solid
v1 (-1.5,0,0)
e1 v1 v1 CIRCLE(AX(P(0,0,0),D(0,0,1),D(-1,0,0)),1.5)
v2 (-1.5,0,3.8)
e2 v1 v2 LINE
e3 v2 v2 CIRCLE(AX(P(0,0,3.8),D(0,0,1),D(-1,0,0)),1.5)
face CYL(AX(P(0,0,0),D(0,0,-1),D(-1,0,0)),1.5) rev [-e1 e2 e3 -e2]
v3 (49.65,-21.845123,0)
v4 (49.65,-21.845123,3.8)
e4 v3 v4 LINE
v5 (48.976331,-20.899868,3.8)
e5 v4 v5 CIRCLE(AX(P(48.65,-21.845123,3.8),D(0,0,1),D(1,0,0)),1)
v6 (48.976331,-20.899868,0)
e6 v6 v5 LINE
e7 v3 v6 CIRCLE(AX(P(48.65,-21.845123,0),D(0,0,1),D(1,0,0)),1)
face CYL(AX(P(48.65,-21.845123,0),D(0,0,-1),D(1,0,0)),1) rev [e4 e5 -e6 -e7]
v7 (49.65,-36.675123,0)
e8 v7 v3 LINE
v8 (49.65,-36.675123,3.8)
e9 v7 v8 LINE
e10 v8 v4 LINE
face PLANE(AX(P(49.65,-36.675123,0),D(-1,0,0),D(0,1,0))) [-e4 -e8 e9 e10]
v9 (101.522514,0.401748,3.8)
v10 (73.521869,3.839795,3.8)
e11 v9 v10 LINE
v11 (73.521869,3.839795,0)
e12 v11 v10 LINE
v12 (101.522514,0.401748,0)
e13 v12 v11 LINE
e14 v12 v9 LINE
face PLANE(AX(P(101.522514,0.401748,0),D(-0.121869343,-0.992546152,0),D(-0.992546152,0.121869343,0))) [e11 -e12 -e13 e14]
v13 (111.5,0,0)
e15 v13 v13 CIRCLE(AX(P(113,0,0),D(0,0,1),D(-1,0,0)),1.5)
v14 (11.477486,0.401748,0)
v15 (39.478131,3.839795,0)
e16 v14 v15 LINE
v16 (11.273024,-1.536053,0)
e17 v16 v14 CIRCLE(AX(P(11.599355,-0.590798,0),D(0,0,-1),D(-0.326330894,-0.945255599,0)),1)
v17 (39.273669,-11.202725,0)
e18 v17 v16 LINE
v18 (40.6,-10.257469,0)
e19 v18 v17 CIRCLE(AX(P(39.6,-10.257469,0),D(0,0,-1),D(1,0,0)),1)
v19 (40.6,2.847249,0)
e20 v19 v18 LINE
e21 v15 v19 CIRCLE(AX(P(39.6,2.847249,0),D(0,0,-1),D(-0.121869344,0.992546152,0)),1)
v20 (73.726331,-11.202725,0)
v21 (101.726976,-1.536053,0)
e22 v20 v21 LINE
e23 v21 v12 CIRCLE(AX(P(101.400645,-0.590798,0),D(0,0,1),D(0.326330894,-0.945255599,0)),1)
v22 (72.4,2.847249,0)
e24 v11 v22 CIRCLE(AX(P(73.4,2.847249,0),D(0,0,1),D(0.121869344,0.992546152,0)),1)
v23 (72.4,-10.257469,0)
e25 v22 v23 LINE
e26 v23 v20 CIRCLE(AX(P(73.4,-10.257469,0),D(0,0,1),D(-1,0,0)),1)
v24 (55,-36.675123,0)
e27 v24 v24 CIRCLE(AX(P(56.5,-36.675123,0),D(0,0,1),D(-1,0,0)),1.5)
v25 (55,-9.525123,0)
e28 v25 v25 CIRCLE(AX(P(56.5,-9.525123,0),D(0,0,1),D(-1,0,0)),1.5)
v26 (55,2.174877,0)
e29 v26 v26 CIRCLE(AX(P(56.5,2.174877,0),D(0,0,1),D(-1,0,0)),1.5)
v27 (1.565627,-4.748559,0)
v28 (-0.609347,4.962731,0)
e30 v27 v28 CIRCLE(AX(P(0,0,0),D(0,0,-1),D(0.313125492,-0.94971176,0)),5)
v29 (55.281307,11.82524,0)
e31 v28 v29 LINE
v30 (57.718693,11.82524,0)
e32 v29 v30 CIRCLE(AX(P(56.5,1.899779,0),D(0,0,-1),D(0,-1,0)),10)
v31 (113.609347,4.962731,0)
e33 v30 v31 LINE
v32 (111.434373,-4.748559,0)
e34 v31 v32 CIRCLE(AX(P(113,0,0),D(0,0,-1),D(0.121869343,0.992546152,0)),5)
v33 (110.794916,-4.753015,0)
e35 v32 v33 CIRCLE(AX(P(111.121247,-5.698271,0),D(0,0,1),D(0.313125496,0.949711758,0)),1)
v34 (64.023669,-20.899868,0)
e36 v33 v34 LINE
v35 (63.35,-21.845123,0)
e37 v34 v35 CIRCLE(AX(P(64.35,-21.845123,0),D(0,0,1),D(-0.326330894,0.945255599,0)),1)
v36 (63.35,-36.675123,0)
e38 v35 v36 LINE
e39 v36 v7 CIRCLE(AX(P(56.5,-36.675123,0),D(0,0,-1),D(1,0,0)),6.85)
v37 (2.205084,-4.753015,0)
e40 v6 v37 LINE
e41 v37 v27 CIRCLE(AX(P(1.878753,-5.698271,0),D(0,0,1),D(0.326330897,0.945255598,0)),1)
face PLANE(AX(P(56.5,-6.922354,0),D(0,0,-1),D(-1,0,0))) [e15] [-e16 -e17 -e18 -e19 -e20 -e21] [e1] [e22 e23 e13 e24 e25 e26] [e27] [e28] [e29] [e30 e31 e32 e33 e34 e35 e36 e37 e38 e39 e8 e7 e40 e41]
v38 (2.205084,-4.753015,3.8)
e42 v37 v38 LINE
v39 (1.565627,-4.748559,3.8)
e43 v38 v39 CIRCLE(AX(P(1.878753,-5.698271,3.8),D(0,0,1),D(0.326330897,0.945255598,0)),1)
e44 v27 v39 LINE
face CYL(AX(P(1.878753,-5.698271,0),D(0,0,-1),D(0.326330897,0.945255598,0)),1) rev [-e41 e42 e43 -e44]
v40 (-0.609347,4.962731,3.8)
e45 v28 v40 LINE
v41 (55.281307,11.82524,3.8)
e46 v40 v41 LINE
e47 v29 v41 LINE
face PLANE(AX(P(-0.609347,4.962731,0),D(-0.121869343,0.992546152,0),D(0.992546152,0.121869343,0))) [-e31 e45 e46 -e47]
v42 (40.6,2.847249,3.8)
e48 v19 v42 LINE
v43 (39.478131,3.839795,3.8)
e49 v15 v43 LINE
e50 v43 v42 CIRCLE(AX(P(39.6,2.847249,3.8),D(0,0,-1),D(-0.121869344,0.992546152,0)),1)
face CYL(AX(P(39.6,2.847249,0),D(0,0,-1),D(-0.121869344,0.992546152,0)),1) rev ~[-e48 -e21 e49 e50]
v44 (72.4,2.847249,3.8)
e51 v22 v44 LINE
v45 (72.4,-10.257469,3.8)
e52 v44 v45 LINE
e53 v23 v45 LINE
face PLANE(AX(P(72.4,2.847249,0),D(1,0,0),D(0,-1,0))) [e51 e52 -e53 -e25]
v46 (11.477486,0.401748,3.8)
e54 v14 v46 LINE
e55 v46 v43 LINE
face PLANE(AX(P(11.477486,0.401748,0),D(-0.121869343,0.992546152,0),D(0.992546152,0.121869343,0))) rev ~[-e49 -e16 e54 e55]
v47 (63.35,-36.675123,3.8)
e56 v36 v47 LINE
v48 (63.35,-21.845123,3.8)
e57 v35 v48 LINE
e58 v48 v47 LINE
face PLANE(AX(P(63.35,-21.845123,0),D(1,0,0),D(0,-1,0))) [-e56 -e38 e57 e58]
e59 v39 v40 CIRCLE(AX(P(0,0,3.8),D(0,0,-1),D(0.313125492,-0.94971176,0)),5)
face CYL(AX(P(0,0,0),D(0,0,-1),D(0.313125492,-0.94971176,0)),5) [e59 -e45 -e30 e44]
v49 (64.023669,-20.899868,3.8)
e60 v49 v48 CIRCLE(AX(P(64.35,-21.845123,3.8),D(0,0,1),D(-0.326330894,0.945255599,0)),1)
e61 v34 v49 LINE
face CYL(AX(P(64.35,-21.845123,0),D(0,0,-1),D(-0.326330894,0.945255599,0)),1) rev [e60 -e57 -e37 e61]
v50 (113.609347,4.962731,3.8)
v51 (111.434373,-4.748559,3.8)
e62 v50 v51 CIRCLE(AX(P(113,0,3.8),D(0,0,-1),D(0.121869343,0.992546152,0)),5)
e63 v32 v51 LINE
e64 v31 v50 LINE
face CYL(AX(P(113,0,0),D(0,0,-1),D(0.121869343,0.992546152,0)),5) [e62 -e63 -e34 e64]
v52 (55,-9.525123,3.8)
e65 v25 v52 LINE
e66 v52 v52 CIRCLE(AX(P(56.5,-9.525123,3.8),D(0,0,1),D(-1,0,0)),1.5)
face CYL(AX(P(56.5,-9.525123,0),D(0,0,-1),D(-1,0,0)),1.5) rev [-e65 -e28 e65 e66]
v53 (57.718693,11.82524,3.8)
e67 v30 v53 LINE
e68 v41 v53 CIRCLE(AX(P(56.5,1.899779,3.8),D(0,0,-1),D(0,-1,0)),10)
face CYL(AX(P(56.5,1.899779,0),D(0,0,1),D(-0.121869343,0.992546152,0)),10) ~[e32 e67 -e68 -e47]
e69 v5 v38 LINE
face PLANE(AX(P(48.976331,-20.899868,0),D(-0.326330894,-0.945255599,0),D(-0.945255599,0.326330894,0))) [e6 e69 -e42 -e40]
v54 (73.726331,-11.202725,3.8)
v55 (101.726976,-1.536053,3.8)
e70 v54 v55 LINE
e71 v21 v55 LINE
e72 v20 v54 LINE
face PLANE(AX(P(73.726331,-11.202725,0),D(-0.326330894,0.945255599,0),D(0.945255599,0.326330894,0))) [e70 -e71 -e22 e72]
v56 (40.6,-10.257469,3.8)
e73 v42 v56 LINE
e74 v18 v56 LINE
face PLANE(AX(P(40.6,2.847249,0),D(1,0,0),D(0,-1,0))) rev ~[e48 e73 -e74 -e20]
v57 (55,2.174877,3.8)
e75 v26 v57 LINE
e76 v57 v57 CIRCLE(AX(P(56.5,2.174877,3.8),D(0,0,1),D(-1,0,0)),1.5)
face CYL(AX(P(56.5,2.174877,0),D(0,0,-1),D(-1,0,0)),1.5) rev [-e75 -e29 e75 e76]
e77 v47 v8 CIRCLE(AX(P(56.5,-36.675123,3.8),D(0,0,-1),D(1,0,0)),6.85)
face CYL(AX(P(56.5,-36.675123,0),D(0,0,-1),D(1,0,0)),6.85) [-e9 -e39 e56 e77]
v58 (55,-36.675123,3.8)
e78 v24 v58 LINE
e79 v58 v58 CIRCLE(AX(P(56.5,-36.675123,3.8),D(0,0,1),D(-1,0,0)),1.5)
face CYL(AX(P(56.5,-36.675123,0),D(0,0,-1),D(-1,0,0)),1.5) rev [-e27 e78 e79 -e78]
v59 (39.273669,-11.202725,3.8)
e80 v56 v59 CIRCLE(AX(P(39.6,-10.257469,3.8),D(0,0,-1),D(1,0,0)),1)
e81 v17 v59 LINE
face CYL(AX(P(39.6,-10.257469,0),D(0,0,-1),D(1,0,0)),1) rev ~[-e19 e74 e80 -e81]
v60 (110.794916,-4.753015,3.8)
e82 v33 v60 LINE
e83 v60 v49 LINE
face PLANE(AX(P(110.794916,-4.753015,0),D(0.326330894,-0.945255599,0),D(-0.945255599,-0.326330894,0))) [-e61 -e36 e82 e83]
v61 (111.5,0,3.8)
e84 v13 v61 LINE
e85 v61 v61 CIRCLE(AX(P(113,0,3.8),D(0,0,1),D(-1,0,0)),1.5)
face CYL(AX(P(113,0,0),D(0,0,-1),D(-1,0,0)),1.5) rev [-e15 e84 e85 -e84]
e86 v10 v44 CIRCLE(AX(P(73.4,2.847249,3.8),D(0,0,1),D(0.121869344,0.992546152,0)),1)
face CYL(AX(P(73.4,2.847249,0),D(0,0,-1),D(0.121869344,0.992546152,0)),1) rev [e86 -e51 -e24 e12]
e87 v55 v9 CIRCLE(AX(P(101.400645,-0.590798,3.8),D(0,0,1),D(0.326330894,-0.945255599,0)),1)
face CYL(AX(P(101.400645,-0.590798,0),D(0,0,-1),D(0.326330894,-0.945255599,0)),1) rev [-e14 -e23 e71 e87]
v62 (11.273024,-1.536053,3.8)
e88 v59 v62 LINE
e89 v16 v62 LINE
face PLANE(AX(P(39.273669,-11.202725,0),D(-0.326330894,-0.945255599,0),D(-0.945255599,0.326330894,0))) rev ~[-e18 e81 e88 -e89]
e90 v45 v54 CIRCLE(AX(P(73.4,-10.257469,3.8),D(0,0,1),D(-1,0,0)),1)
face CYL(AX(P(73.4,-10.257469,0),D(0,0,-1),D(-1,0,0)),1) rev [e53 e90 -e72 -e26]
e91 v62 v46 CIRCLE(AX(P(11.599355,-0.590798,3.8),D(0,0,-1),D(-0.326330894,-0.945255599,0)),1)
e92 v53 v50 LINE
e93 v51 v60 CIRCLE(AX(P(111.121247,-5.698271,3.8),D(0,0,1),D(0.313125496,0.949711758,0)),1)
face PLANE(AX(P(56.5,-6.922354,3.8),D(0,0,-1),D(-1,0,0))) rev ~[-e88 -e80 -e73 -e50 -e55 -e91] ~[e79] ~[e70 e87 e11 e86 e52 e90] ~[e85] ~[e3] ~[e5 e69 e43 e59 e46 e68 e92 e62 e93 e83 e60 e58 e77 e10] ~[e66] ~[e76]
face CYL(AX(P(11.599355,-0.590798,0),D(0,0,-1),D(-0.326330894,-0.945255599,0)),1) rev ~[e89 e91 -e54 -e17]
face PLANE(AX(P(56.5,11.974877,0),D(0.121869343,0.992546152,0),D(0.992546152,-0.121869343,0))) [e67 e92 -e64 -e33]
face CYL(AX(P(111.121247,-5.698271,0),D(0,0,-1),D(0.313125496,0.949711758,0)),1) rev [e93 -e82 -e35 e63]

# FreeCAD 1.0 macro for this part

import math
import FreeCAD as App
import Part
import Sketcher
Q = App.Units.Quantity


def edges_at(feature, points):
    """Names of the edges that pass closest to the given points."""
    edges = feature.Shape.Edges
    near = lambda p: min(range(len(edges)), key=lambda i: edges[i].distToShape(Part.Vertex(*p))[0])
    return sorted({f"Edge{near(p) + 1}" for p in points})

doc = App.newDocument("Part")
params = doc.addObject("Spreadsheet::Sheet", "Params")
for row, (alias, value) in enumerate([
    ("sketch1_diameter", "3 mm"),
    ("sketch1_radius", "5 mm"),
    ("sketch1_radius2", "1 mm"),
    ("sketch1_radius3", "6.85 mm"),
    ("sketch1_height", "14.83 mm"),
    ("pad1_length", "3.8 mm"),
    ("fillet_radius", "10 mm"),
], start=1):
    params.set(f"A{row}", alias)
    params.set(f"B{row}", "=" + value)
    params.setAlias(f"B{row}", alias)

body = doc.addObject("PartDesign::Body", "Body")

sketch1 = body.newObject("Sketcher::SketchObject", "Sketch")
sketch1.AttachmentSupport = (doc.getObject("XY_Plane"), [""])
sketch1.MapMode = "FlatFace"
sketch1.addGeometry([
    Part.LineSegment(App.Vector(56.5, 11.974877, 0), App.Vector(-0.609347, 4.962731, 0)),
    Part.ArcOfCircle(Part.Circle(App.Vector(0, 0, 0), App.Vector(0, 0, 1), 5), math.radians(97), math.radians(288.247688)),
    Part.ArcOfCircle(Part.Circle(App.Vector(1.878753, -5.698271, 0), App.Vector(0, 0, 1), 1), math.radians(70.953774), math.radians(108.247689)),
    Part.LineSegment(App.Vector(2.205084, -4.753015, 0), App.Vector(48.976331, -20.899868, 0)),
    Part.ArcOfCircle(Part.Circle(App.Vector(48.65, -21.845123, 0), App.Vector(0, 0, 1), 1), math.radians(0), math.radians(70.953774)),
    Part.LineSegment(App.Vector(49.65, -21.845123, 0), App.Vector(49.65, -36.675123, 0)),
    Part.ArcOfCircle(Part.Circle(App.Vector(56.5, -36.675123, 0), App.Vector(0, 0, 1), 6.85), math.radians(180), math.radians(360)),
    Part.LineSegment(App.Vector(63.35, -36.675123, 0), App.Vector(63.35, -21.845123, 0)),
    Part.ArcOfCircle(Part.Circle(App.Vector(64.35, -21.845123, 0), App.Vector(0, 0, 1), 1), math.radians(109.046226), math.radians(180)),
    Part.LineSegment(App.Vector(64.023669, -20.899868, 0), App.Vector(110.794916, -4.753015, 0)),
    Part.ArcOfCircle(Part.Circle(App.Vector(111.121247, -5.698271, 0), App.Vector(0, 0, 1), 1), math.radians(71.752311), math.radians(109.046226)),
    Part.ArcOfCircle(Part.Circle(App.Vector(113, 0, 0), App.Vector(0, 0, 1), 5), math.radians(-108.247688), math.radians(83)),
    Part.LineSegment(App.Vector(113.609347, 4.962731, 0), App.Vector(56.5, 11.974877, 0)),
    Part.Circle(App.Vector(56.5, -36.675123, 0), App.Vector(0, 0, 1), 1.5),
    Part.ArcOfCircle(Part.Circle(App.Vector(73.4, 2.847249, 0), App.Vector(0, 0, 1), 1), math.radians(83), math.radians(180)),
    Part.LineSegment(App.Vector(73.521869, 3.839795, 0), App.Vector(101.522514, 0.401748, 0)),
    Part.ArcOfCircle(Part.Circle(App.Vector(101.400645, -0.590798, 0), App.Vector(0, 0, 1), 1), math.radians(-70.953774), math.radians(83)),
    Part.LineSegment(App.Vector(101.726976, -1.536053, 0), App.Vector(73.726331, -11.202725, 0)),
    Part.ArcOfCircle(Part.Circle(App.Vector(73.4, -10.257469, 0), App.Vector(0, 0, 1), 1), math.radians(180), math.radians(289.046226)),
    Part.LineSegment(App.Vector(72.4, -10.257469, 0), App.Vector(72.4, 2.847249, 0)),
    Part.Circle(App.Vector(113, 0, 0), App.Vector(0, 0, 1), 1.5),
    Part.Circle(App.Vector(56.5, -9.525123, 0), App.Vector(0, 0, 1), 1.5),
    Part.Circle(App.Vector(56.5, 2.174877, 0), App.Vector(0, 0, 1), 1.5),
    Part.LineSegment(App.Vector(11.477486, 0.401748, 0), App.Vector(39.478131, 3.839795, 0)),
    Part.ArcOfCircle(Part.Circle(App.Vector(39.6, 2.847249, 0), App.Vector(0, 0, 1), 1), math.radians(0), math.radians(97)),
    Part.LineSegment(App.Vector(40.6, 2.847249, 0), App.Vector(40.6, -10.257469, 0)),
    Part.ArcOfCircle(Part.Circle(App.Vector(39.6, -10.257469, 0), App.Vector(0, 0, 1), 1), math.radians(-109.046226), math.radians(0)),
    Part.LineSegment(App.Vector(39.273669, -11.202725, 0), App.Vector(11.273024, -1.536053, 0)),
    Part.ArcOfCircle(Part.Circle(App.Vector(11.599355, -0.590798, 0), App.Vector(0, 0, 1), 1), math.radians(97), math.radians(250.953774)),
    Part.Circle(App.Vector(0, 0, 0), App.Vector(0, 0, 1), 1.5),
], False)
sketch1.addConstraint([
    Sketcher.Constraint("Tangent", 0, 2, 1, 1),
    Sketcher.Constraint("Tangent", 1, 2, 2, 2),
    Sketcher.Constraint("Tangent", 2, 1, 3, 1),
    Sketcher.Constraint("Tangent", 3, 2, 4, 2),
    Sketcher.Constraint("Tangent", 4, 1, 5, 1),
    Sketcher.Constraint("Tangent", 5, 2, 6, 1),
    Sketcher.Constraint("Tangent", 6, 2, 7, 1),
    Sketcher.Constraint("Tangent", 7, 2, 8, 2),
    Sketcher.Constraint("Tangent", 8, 1, 9, 1),
    Sketcher.Constraint("Tangent", 9, 2, 10, 2),
    Sketcher.Constraint("Tangent", 10, 1, 11, 1),
    Sketcher.Constraint("Tangent", 11, 2, 12, 1),
    Sketcher.Constraint("Coincident", 12, 2, 0, 1),
    Sketcher.Constraint("Tangent", 14, 1, 15, 1),
    Sketcher.Constraint("Tangent", 15, 2, 16, 2),
    Sketcher.Constraint("Tangent", 16, 1, 17, 1),
    Sketcher.Constraint("Tangent", 17, 2, 18, 2),
    Sketcher.Constraint("Tangent", 18, 1, 19, 1),
    Sketcher.Constraint("Tangent", 19, 2, 14, 2),
    Sketcher.Constraint("Tangent", 23, 2, 24, 2),
    Sketcher.Constraint("Tangent", 24, 1, 25, 1),
    Sketcher.Constraint("Tangent", 25, 2, 26, 2),
    Sketcher.Constraint("Tangent", 26, 1, 27, 1),
    Sketcher.Constraint("Tangent", 27, 2, 28, 2),
    Sketcher.Constraint("Tangent", 28, 1, 23, 1),
    Sketcher.Constraint("Vertical", 5),
    Sketcher.Constraint("Vertical", 7),
    Sketcher.Constraint("Vertical", 19),
    Sketcher.Constraint("Vertical", 25),
    Sketcher.Constraint("Coincident", 1, 3, -1, 1),
    Sketcher.Constraint("Coincident", 29, 3, -1, 1),
    Sketcher.Constraint("Coincident", 13, 3, 6, 3),
    Sketcher.Constraint("Coincident", 20, 3, 11, 3),
    Sketcher.Constraint("Equal", 2, 4),
    Sketcher.Constraint("Equal", 4, 8),
    Sketcher.Constraint("Equal", 8, 10),
    Sketcher.Constraint("Equal", 1, 11),
    Sketcher.Constraint("Equal", 10, 14),
    Sketcher.Constraint("Equal", 14, 16),
    Sketcher.Constraint("Equal", 16, 18),
    Sketcher.Constraint("Equal", 13, 20),
    Sketcher.Constraint("Equal", 20, 21),
    Sketcher.Constraint("Equal", 21, 22),
    Sketcher.Constraint("Equal", 18, 24),
    Sketcher.Constraint("Equal", 24, 26),
    Sketcher.Constraint("Equal", 26, 28),
    Sketcher.Constraint("Equal", 22, 29),
    Sketcher.Constraint("PointOnObject", 11, 3, -1),
    Sketcher.Constraint("Parallel", 12, 15),
    Sketcher.Constraint("Parallel", 9, 17),
    Sketcher.Constraint("Parallel", 0, 23),
    Sketcher.Constraint("Parallel", 3, 27),
    Sketcher.Constraint("Horizontal", 4, 3, 8, 3),
    Sketcher.Constraint("Horizontal", 2, 3, 10, 3),
    Sketcher.Constraint("Horizontal", 14, 3, 24, 3),
    Sketcher.Constraint("Horizontal", 18, 3, 26, 3),
    Sketcher.Constraint("Horizontal", 16, 3, 28, 3),
    Sketcher.Constraint("Vertical", 13, 3, 21, 3),
    Sketcher.Constraint("Vertical", 21, 3, 22, 3),
    Sketcher.Constraint("Vertical", 22, 3, 12, 2),
    Sketcher.Constraint("Diameter", 13, 3.0),
    Sketcher.Constraint("Radius", 1, 5.0),
    Sketcher.Constraint("Radius", 2, 1.0),
    Sketcher.Constraint("Angle", 0, Q("-173 deg")),
    Sketcher.Constraint("Radius", 6, 6.85),
    Sketcher.Constraint("DistanceX", -1, 1, 11, 3, 113.0),
    Sketcher.Constraint("DistanceY", 5, 2, 5, 1, 14.83),
    Sketcher.Constraint("DistanceX", -1, 1, 14, 3, 73.4),
    Sketcher.Constraint("DistanceX", -1, 1, 24, 3, 39.6),
    Sketcher.Constraint("DistanceY", 21, 3, 22, 3, 11.7),
    Sketcher.Constraint("DistanceY", 22, 3, 12, 2, 9.8),
    Sketcher.Constraint("Distance", 3, 49.48),
    Sketcher.Constraint("DistanceY", 4, 3, 21, 3, 12.32),
    Sketcher.Constraint("Distance", 17, 29.6223),
    Sketcher.Constraint("DistanceY", 3, 2, 26, 3, 10.642398),
])
sketch1.setExpression("Constraints[60]", "Params.sketch1_diameter")
sketch1.setExpression("Constraints[61]", "Params.sketch1_radius")
sketch1.setExpression("Constraints[62]", "Params.sketch1_radius2")
sketch1.setExpression("Constraints[64]", "Params.sketch1_radius3")
sketch1.setExpression("Constraints[66]", "Params.sketch1_height")
pad1 = body.newObject("PartDesign::Pad", "Pad")
pad1.Profile = sketch1
pad1.setExpression("Length", "Params.pad1_length")
doc.recompute()

fillet = body.newObject("PartDesign::Fillet", "Fillet")
fillet.Base = (pad1, edges_at(pad1, [(56.5, 11.975, 1.9)]))
fillet.setExpression("Radius", "Params.fillet_radius")

doc.recompute()
